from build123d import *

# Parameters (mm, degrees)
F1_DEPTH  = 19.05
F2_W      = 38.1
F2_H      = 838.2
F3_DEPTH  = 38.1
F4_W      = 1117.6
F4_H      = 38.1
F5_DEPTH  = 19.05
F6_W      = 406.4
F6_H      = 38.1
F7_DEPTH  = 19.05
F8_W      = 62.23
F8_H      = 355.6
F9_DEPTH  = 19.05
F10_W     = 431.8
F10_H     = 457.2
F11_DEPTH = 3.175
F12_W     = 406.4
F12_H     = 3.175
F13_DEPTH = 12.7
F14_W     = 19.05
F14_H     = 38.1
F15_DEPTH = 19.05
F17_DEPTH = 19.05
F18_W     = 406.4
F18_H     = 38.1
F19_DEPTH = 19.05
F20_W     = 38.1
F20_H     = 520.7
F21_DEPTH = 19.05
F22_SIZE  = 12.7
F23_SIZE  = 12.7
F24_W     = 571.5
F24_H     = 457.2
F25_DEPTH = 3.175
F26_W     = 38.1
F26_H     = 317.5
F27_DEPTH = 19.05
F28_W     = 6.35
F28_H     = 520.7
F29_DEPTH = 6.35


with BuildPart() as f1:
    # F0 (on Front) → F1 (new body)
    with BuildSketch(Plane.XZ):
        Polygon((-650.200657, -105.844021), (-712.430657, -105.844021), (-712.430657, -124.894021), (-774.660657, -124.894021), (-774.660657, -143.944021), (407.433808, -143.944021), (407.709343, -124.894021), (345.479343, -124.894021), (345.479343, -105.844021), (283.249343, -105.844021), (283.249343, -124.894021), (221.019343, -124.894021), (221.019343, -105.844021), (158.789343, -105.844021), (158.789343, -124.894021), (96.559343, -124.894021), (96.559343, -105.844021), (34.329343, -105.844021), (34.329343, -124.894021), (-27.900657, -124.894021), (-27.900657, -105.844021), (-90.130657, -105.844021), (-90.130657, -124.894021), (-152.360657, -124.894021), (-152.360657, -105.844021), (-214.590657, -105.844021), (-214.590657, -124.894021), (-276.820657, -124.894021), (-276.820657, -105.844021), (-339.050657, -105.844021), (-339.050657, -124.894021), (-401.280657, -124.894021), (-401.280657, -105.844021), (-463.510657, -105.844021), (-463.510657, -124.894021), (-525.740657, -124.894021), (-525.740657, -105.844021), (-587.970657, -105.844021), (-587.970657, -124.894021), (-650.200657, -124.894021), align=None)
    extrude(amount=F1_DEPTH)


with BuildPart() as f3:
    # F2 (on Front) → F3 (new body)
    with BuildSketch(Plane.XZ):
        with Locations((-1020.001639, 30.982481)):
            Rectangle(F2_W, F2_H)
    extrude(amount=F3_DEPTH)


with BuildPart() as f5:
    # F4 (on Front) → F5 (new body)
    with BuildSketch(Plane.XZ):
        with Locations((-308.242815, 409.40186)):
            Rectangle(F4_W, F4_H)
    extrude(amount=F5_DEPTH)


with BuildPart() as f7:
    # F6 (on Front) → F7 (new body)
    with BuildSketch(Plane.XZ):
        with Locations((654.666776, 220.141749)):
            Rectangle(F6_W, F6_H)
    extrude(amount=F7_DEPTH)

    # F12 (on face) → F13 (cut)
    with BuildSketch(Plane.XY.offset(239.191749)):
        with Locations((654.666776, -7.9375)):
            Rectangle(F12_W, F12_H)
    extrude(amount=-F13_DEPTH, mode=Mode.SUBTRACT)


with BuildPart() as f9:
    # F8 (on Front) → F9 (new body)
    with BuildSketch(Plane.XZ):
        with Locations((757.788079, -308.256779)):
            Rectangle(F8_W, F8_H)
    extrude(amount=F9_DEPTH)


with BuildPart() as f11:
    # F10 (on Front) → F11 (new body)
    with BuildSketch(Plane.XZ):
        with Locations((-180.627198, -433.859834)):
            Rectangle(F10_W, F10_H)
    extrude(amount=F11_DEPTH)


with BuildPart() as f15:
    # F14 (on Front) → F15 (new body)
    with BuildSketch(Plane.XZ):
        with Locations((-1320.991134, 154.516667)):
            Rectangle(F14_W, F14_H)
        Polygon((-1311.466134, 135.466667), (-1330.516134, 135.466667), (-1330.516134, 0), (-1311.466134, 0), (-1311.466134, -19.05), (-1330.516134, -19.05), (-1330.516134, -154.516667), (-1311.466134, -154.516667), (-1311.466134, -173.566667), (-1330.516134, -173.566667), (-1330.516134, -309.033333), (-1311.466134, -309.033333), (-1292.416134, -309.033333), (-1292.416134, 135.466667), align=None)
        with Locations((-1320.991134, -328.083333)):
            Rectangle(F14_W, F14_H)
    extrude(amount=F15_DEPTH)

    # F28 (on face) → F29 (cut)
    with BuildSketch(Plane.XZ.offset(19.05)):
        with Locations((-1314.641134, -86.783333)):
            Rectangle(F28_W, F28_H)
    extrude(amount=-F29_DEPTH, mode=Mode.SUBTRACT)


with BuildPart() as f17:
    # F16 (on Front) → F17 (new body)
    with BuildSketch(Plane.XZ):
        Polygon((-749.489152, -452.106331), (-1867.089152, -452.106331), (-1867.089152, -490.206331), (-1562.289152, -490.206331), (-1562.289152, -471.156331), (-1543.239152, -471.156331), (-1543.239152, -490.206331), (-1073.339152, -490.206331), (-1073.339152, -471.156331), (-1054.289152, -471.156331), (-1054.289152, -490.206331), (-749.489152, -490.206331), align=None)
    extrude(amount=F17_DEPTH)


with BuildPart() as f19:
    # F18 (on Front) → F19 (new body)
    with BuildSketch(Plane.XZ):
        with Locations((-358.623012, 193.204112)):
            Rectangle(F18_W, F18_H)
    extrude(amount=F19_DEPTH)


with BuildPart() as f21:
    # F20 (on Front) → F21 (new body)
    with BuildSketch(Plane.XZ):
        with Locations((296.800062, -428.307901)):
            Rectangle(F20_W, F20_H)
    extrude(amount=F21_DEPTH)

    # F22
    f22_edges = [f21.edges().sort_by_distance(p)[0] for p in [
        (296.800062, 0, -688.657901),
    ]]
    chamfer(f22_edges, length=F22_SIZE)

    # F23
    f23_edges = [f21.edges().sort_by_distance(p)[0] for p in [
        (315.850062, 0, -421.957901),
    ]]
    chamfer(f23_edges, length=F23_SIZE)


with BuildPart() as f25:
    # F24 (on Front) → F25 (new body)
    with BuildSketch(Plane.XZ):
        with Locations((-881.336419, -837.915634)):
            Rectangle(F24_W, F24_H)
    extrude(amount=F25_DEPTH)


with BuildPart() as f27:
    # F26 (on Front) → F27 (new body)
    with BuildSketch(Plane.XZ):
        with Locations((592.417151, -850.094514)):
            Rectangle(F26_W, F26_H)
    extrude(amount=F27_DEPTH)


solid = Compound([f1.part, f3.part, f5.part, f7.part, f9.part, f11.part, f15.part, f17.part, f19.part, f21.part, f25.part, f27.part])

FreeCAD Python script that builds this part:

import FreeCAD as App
import Part
import Sketcher

V = App.Vector
Q = App.Units.Quantity


def edges_at(feature, points):
    """Names of the edges that pass closest to the given points."""
    edges = feature.Shape.Edges
    near = lambda p: min(range(len(edges)), key=lambda i: edges[i].distToShape(Part.Vertex(*p))[0])
    return sorted({f"Edge{near(p) + 1}" for p in points})

doc = App.newDocument("Part")
params = doc.addObject("Spreadsheet::Sheet", "Params")
for row, (alias, value) in enumerate([
    ("sketch1_width", "2.45 in"),
    ("sketch1_height", "0.75 in"),
    ("pad1_length", "0.75 in"),
    ("sketch2_height", "33 in"),
    ("sketch2_width", "1.5 in"),
    ("pad2_length", "1.5 in"),
    ("sketch3_width", "44 in"),
    ("sketch3_height", "1.5 in"),
    ("pad3_length", "0.75 in"),
    ("sketch4_width", "16 in"),
    ("sketch4_height", "1.5 in"),
    ("pad4_length", "0.75 in"),
    ("sketch5_width", "16 in"),
    ("sketch5_height", "0.125 in"),
    ("pocket1_length", "0.5 in"),
    ("sketch6_height", "14 in"),
    ("sketch6_width", "2.45 in"),
    ("pad5_length", "0.75 in"),
    ("sketch7_width", "17 in"),
    ("sketch7_height", "18 in"),
    ("pad6_length", "0.125 in"),
    ("sketch8_height", "1.5 in"),
    ("sketch8_height2", "17.5 in"),
    ("sketch8_width", "0.75 in"),
    ("pad7_length", "0.75 in"),
    ("sketch9_height", "20.5 in"),
    ("sketch9_width", "0.25 in"),
    ("pocket2_length", "0.25 in"),
    ("sketch10_width", "44 in"),
    ("sketch10_width2", "12 in"),
    ("sketch10_width3", "18.5 in"),
    ("sketch10_height", "1.5 in"),
    ("pad8_length", "0.75 in"),
    ("sketch11_width", "16 in"),
    ("sketch11_height", "1.5 in"),
    ("pad9_length", "0.75 in"),
    ("sketch12_width", "1.5 in"),
    ("sketch12_height", "20.5 in"),
    ("pad10_length", "0.75 in"),
    ("chamfer_size", "0.5 in"),
    ("chamfer2_size", "0.5 in"),
    ("sketch13_height", "18 in"),
    ("sketch13_width", "22.5 in"),
    ("pad11_length", "0.125 in"),
    ("sketch14_width", "1.5 in"),
    ("sketch14_height", "12.5 in"),
    ("pad12_length", "0.75 in"),
], start=1):
    params.set(f"A{row}", alias)
    params.set(f"B{row}", "=" + value)
    params.setAlias(f"B{row}", alias)

body = doc.addObject("PartDesign::Body", "Body")

# Sketch on XZ plane
sketch1 = body.newObject("Sketcher::SketchObject", "Sketch")
sketch1.AttachmentSupport = (doc.getObject("XZ_Plane"), [""])
sketch1.MapMode = "FlatFace"
sketch1.addGeometry(Part.LineSegment(V(-650, -106, 0), V(-712, -106, 0)), False)
sketch1.addGeometry(Part.LineSegment(V(-712, -106, 0), V(-712, -125, 0)), False)
sketch1.addGeometry(Part.LineSegment(V(-712, -125, 0), V(-775, -125, 0)), False)
sketch1.addGeometry(Part.LineSegment(V(-775, -125, 0), V(-775, -144, 0)), False)
sketch1.addGeometry(Part.LineSegment(V(-775, -144, 0), V(407, -144, 0)), False)
sketch1.addGeometry(Part.LineSegment(V(407, -144, 0), V(408, -125, 0)), False)
sketch1.addGeometry(Part.LineSegment(V(408, -125, 0), V(345, -125, 0)), False)
sketch1.addGeometry(Part.LineSegment(V(345, -125, 0), V(345, -106, 0)), False)
sketch1.addGeometry(Part.LineSegment(V(345, -106, 0), V(283, -106, 0)), False)
sketch1.addGeometry(Part.LineSegment(V(283, -106, 0), V(283, -125, 0)), False)
sketch1.addGeometry(Part.LineSegment(V(283, -125, 0), V(221, -125, 0)), False)
sketch1.addGeometry(Part.LineSegment(V(221, -125, 0), V(221, -106, 0)), False)
sketch1.addGeometry(Part.LineSegment(V(221, -106, 0), V(159, -106, 0)), False)
sketch1.addGeometry(Part.LineSegment(V(159, -106, 0), V(159, -125, 0)), False)
sketch1.addGeometry(Part.LineSegment(V(159, -125, 0), V(97, -125, 0)), False)
sketch1.addGeometry(Part.LineSegment(V(97, -125, 0), V(97, -106, 0)), False)
sketch1.addGeometry(Part.LineSegment(V(97, -106, 0), V(34, -106, 0)), False)
sketch1.addGeometry(Part.LineSegment(V(34, -106, 0), V(34, -125, 0)), False)
sketch1.addGeometry(Part.LineSegment(V(34, -125, 0), V(-28, -125, 0)), False)
sketch1.addGeometry(Part.LineSegment(V(-28, -125, 0), V(-28, -106, 0)), False)
sketch1.addGeometry(Part.LineSegment(V(-28, -106, 0), V(-90, -106, 0)), False)
sketch1.addGeometry(Part.LineSegment(V(-90, -106, 0), V(-90, -125, 0)), False)
sketch1.addGeometry(Part.LineSegment(V(-90, -125, 0), V(-152, -125, 0)), False)
sketch1.addGeometry(Part.LineSegment(V(-152, -125, 0), V(-152, -106, 0)), False)
sketch1.addGeometry(Part.LineSegment(V(-152, -106, 0), V(-215, -106, 0)), False)
sketch1.addGeometry(Part.LineSegment(V(-215, -106, 0), V(-215, -125, 0)), False)
sketch1.addGeometry(Part.LineSegment(V(-215, -125, 0), V(-277, -125, 0)), False)
sketch1.addGeometry(Part.LineSegment(V(-277, -125, 0), V(-277, -106, 0)), False)
sketch1.addGeometry(Part.LineSegment(V(-277, -106, 0), V(-339, -106, 0)), False)
sketch1.addGeometry(Part.LineSegment(V(-339, -106, 0), V(-339, -125, 0)), False)
sketch1.addGeometry(Part.LineSegment(V(-339, -125, 0), V(-401, -125, 0)), False)
sketch1.addGeometry(Part.LineSegment(V(-401, -125, 0), V(-401, -106, 0)), False)
sketch1.addGeometry(Part.LineSegment(V(-401, -106, 0), V(-464, -106, 0)), False)
sketch1.addGeometry(Part.LineSegment(V(-464, -106, 0), V(-464, -125, 0)), False)
sketch1.addGeometry(Part.LineSegment(V(-464, -125, 0), V(-526, -125, 0)), False)
sketch1.addGeometry(Part.LineSegment(V(-526, -125, 0), V(-526, -106, 0)), False)
sketch1.addGeometry(Part.LineSegment(V(-526, -106, 0), V(-588, -106, 0)), False)
sketch1.addGeometry(Part.LineSegment(V(-588, -106, 0), V(-588, -125, 0)), False)
sketch1.addGeometry(Part.LineSegment(V(-588, -125, 0), V(-650, -125, 0)), False)
sketch1.addGeometry(Part.LineSegment(V(-650, -125, 0), V(-650, -106, 0)), False)
sketch1.addConstraint(Sketcher.Constraint("Coincident", 0, 2, 1, 1))
sketch1.addConstraint(Sketcher.Constraint("Coincident", 1, 2, 2, 1))
sketch1.addConstraint(Sketcher.Constraint("Coincident", 2, 2, 3, 1))
sketch1.addConstraint(Sketcher.Constraint("Coincident", 3, 2, 4, 1))
sketch1.addConstraint(Sketcher.Constraint("Coincident", 4, 2, 5, 1))
sketch1.addConstraint(Sketcher.Constraint("Coincident", 5, 2, 6, 1))
sketch1.addConstraint(Sketcher.Constraint("Coincident", 6, 2, 7, 1))
sketch1.addConstraint(Sketcher.Constraint("Coincident", 7, 2, 8, 1))
sketch1.addConstraint(Sketcher.Constraint("Coincident", 8, 2, 9, 1))
sketch1.addConstraint(Sketcher.Constraint("Coincident", 9, 2, 10, 1))
sketch1.addConstraint(Sketcher.Constraint("Coincident", 10, 2, 11, 1))
sketch1.addConstraint(Sketcher.Constraint("Coincident", 11, 2, 12, 1))
sketch1.addConstraint(Sketcher.Constraint("Coincident", 12, 2, 13, 1))
sketch1.addConstraint(Sketcher.Constraint("Coincident", 13, 2, 14, 1))
sketch1.addConstraint(Sketcher.Constraint("Coincident", 14, 2, 15, 1))
sketch1.addConstraint(Sketcher.Constraint("Coincident", 15, 2, 16, 1))
sketch1.addConstraint(Sketcher.Constraint("Coincident", 16, 2, 17, 1))
sketch1.addConstraint(Sketcher.Constraint("Coincident", 17, 2, 18, 1))
sketch1.addConstraint(Sketcher.Constraint("Coincident", 18, 2, 19, 1))
sketch1.addConstraint(Sketcher.Constraint("Coincident", 19, 2, 20, 1))
sketch1.addConstraint(Sketcher.Constraint("Coincident", 20, 2, 21, 1))
sketch1.addConstraint(Sketcher.Constraint("Coincident", 21, 2, 22, 1))
sketch1.addConstraint(Sketcher.Constraint("Coincident", 22, 2, 23, 1))
sketch1.addConstraint(Sketcher.Constraint("Coincident", 23, 2, 24, 1))
sketch1.addConstraint(Sketcher.Constraint("Coincident", 24, 2, 25, 1))
sketch1.addConstraint(Sketcher.Constraint("Coincident", 25, 2, 26, 1))
sketch1.addConstraint(Sketcher.Constraint("Coincident", 26, 2, 27, 1))
sketch1.addConstraint(Sketcher.Constraint("Coincident", 27, 2, 28, 1))
sketch1.addConstraint(Sketcher.Constraint("Coincident", 28, 2, 29, 1))
sketch1.addConstraint(Sketcher.Constraint("Coincident", 29, 2, 30, 1))
sketch1.addConstraint(Sketcher.Constraint("Coincident", 30, 2, 31, 1))
sketch1.addConstraint(Sketcher.Constraint("Coincident", 31, 2, 32, 1))
sketch1.addConstraint(Sketcher.Constraint("Coincident", 32, 2, 33, 1))
sketch1.addConstraint(Sketcher.Constraint("Coincident", 33, 2, 34, 1))
sketch1.addConstraint(Sketcher.Constraint("Coincident", 34, 2, 35, 1))
sketch1.addConstraint(Sketcher.Constraint("Coincident", 35, 2, 36, 1))
sketch1.addConstraint(Sketcher.Constraint("Coincident", 36, 2, 37, 1))
sketch1.addConstraint(Sketcher.Constraint("Coincident", 37, 2, 38, 1))
sketch1.addConstraint(Sketcher.Constraint("Coincident", 38, 2, 39, 1))
sketch1.addConstraint(Sketcher.Constraint("Coincident", 39, 2, 0, 1))
sketch1.addConstraint(Sketcher.Constraint("Horizontal", 0))
sketch1.addConstraint(Sketcher.Constraint("Vertical", 1))
sketch1.addConstraint(Sketcher.Constraint("Horizontal", 2))
sketch1.addConstraint(Sketcher.Constraint("Vertical", 3))
sketch1.addConstraint(Sketcher.Constraint("Horizontal", 4))
sketch1.addConstraint(Sketcher.Constraint("Horizontal", 6))
sketch1.addConstraint(Sketcher.Constraint("Vertical", 7))
sketch1.addConstraint(Sketcher.Constraint("Horizontal", 8))
sketch1.addConstraint(Sketcher.Constraint("Vertical", 9))
sketch1.addConstraint(Sketcher.Constraint("Horizontal", 10))
sketch1.addConstraint(Sketcher.Constraint("Vertical", 11))
sketch1.addConstraint(Sketcher.Constraint("Horizontal", 12))
sketch1.addConstraint(Sketcher.Constraint("Vertical", 13))
sketch1.addConstraint(Sketcher.Constraint("Horizontal", 14))
sketch1.addConstraint(Sketcher.Constraint("Vertical", 15))
sketch1.addConstraint(Sketcher.Constraint("Horizontal", 16))
sketch1.addConstraint(Sketcher.Constraint("Vertical", 17))
sketch1.addConstraint(Sketcher.Constraint("Horizontal", 18))
sketch1.addConstraint(Sketcher.Constraint("Vertical", 19))
sketch1.addConstraint(Sketcher.Constraint("Horizontal", 20))
sketch1.addConstraint(Sketcher.Constraint("Vertical", 21))
sketch1.addConstraint(Sketcher.Constraint("Horizontal", 22))
sketch1.addConstraint(Sketcher.Constraint("Vertical", 23))
sketch1.addConstraint(Sketcher.Constraint("Horizontal", 24))
sketch1.addConstraint(Sketcher.Constraint("Vertical", 25))
sketch1.addConstraint(Sketcher.Constraint("Horizontal", 26))
sketch1.addConstraint(Sketcher.Constraint("Vertical", 27))
sketch1.addConstraint(Sketcher.Constraint("Horizontal", 28))
sketch1.addConstraint(Sketcher.Constraint("Vertical", 29))
sketch1.addConstraint(Sketcher.Constraint("Horizontal", 30))
sketch1.addConstraint(Sketcher.Constraint("Vertical", 31))
sketch1.addConstraint(Sketcher.Constraint("Horizontal", 32))
sketch1.addConstraint(Sketcher.Constraint("Vertical", 33))
sketch1.addConstraint(Sketcher.Constraint("Horizontal", 34))
sketch1.addConstraint(Sketcher.Constraint("Vertical", 35))
sketch1.addConstraint(Sketcher.Constraint("Horizontal", 36))
sketch1.addConstraint(Sketcher.Constraint("Vertical", 37))
sketch1.addConstraint(Sketcher.Constraint("Horizontal", 38))
sketch1.addConstraint(Sketcher.Constraint("Vertical", 39))
sketch1.addConstraint(Sketcher.Constraint("Horizontal", 2, 2, 5, 2))
sketch1.addConstraint(Sketcher.Constraint("Horizontal", 0, 2, 7, 2))
sketch1.addConstraint(Sketcher.Constraint("Horizontal", 6, 2, 9, 2))
sketch1.addConstraint(Sketcher.Constraint("Horizontal", 8, 2, 11, 2))
sketch1.addConstraint(Sketcher.Constraint("Horizontal", 10, 2, 13, 2))
sketch1.addConstraint(Sketcher.Constraint("Horizontal", 12, 2, 15, 2))
sketch1.addConstraint(Sketcher.Constraint("Horizontal", 14, 2, 17, 2))
sketch1.addConstraint(Sketcher.Constraint("Horizontal", 16, 2, 19, 2))
sketch1.addConstraint(Sketcher.Constraint("Horizontal", 18, 2, 21, 2))
sketch1.addConstraint(Sketcher.Constraint("Horizontal", 20, 2, 23, 2))
sketch1.addConstraint(Sketcher.Constraint("Horizontal", 22, 2, 25, 2))
sketch1.addConstraint(Sketcher.Constraint("Horizontal", 24, 2, 27, 2))
sketch1.addConstraint(Sketcher.Constraint("Horizontal", 26, 2, 29, 2))
sketch1.addConstraint(Sketcher.Constraint("Horizontal", 28, 2, 31, 2))
sketch1.addConstraint(Sketcher.Constraint("Horizontal", 30, 2, 33, 2))
sketch1.addConstraint(Sketcher.Constraint("Horizontal", 32, 2, 35, 2))
sketch1.addConstraint(Sketcher.Constraint("Horizontal", 34, 2, 37, 2))
sketch1.addConstraint(Sketcher.Constraint("Equal", 0, 2))
sketch1.addConstraint(Sketcher.Constraint("Equal", 2, 6))
sketch1.addConstraint(Sketcher.Constraint("Equal", 6, 8))
sketch1.addConstraint(Sketcher.Constraint("Equal", 8, 10))
sketch1.addConstraint(Sketcher.Constraint("Equal", 10, 12))
sketch1.addConstraint(Sketcher.Constraint("Equal", 12, 14))
sketch1.addConstraint(Sketcher.Constraint("Equal", 14, 16))
sketch1.addConstraint(Sketcher.Constraint("Equal", 16, 18))
sketch1.addConstraint(Sketcher.Constraint("Equal", 18, 20))
sketch1.addConstraint(Sketcher.Constraint("Equal", 20, 22))
sketch1.addConstraint(Sketcher.Constraint("Equal", 22, 24))
sketch1.addConstraint(Sketcher.Constraint("Equal", 24, 26))
sketch1.addConstraint(Sketcher.Constraint("Equal", 26, 28))
sketch1.addConstraint(Sketcher.Constraint("Equal", 28, 30))
sketch1.addConstraint(Sketcher.Constraint("Equal", 30, 32))
sketch1.addConstraint(Sketcher.Constraint("Equal", 32, 34))
sketch1.addConstraint(Sketcher.Constraint("Equal", 34, 36))
sketch1.addConstraint(Sketcher.Constraint("Equal", 36, 38))
sketch1.addConstraint(Sketcher.Constraint("Equal", 1, 3))
sketch1.addConstraint(Sketcher.Constraint("DistanceX", 0, 2, 0, 1, Q("2.45 in")))
sketch1.addConstraint(Sketcher.Constraint("DistanceY", 1, 2, 1, 1, Q("0.75 in")))
sketch1.addConstraint(Sketcher.Constraint("DistanceX", 4, 1, 4, 2, Q("1182.094465 mm")))
sketch1.addConstraint(Sketcher.Constraint("DistanceY", 0, 2, -1, 1, Q("105.844021 mm")))
sketch1.addConstraint(Sketcher.Constraint("DistanceX", -1, 1, 4, 2, Q("407.433808 mm")))
sketch1.setExpression("Constraints[115]", "Params.sketch1_width")
sketch1.setExpression("Constraints[116]", "Params.sketch1_height")
pad1 = body.newObject("PartDesign::Pad", "Pad")
pad1.Profile = sketch1
pad1.setExpression("Length", "Params.pad1_length")
body2 = doc.addObject("PartDesign::Body", "Body001")

# Sketch on XZ plane
sketch2 = body2.newObject("Sketcher::SketchObject", "Sketch001")
sketch2.AttachmentSupport = (doc.getObject("XZ_Plane001"), [""])
sketch2.MapMode = "FlatFace"
sketch2.addGeometry(Part.LineSegment(V(-1039, 450, 0), V(-1039, -388, 0)), False)
sketch2.addGeometry(Part.LineSegment(V(-1039, -388, 0), V(-1001, -388, 0)), False)
sketch2.addGeometry(Part.LineSegment(V(-1001, -388, 0), V(-1001, 450, 0)), False)
sketch2.addGeometry(Part.LineSegment(V(-1001, 450, 0), V(-1039, 450, 0)), False)
sketch2.addConstraint(Sketcher.Constraint("Coincident", 0, 2, 1, 1))
sketch2.addConstraint(Sketcher.Constraint("Coincident", 1, 2, 2, 1))
sketch2.addConstraint(Sketcher.Constraint("Coincident", 2, 2, 3, 1))
sketch2.addConstraint(Sketcher.Constraint("Coincident", 3, 2, 0, 1))
sketch2.addConstraint(Sketcher.Constraint("Vertical", 0))
sketch2.addConstraint(Sketcher.Constraint("Horizontal", 1))
sketch2.addConstraint(Sketcher.Constraint("Vertical", 2))
sketch2.addConstraint(Sketcher.Constraint("Horizontal", 3))
sketch2.addConstraint(Sketcher.Constraint("DistanceY", 0, 2, 0, 1, Q("33 in")))
sketch2.addConstraint(Sketcher.Constraint("DistanceX", 1, 1, 1, 2, Q("1.5 in")))
sketch2.addConstraint(Sketcher.Constraint("DistanceX", 0, 2, -1, 1, Q("1039.051639 mm")))
sketch2.addConstraint(Sketcher.Constraint("DistanceY", 0, 2, -1, 1, Q("388.117519 mm")))
sketch2.setExpression("Constraints[8]", "Params.sketch2_height")
sketch2.setExpression("Constraints[9]", "Params.sketch2_width")
pad2 = body2.newObject("PartDesign::Pad", "Pad001")
pad2.Profile = sketch2
pad2.setExpression("Length", "Params.pad2_length")
body3 = doc.addObject("PartDesign::Body", "Body002")

# Sketch on XZ plane
sketch3 = body3.newObject("Sketcher::SketchObject", "Sketch002")
sketch3.AttachmentSupport = (doc.getObject("XZ_Plane002"), [""])
sketch3.MapMode = "FlatFace"
sketch3.addGeometry(Part.LineSegment(V(-867, 428, 0), V(-867, 390, 0)), False)
sketch3.addGeometry(Part.LineSegment(V(-867, 390, 0), V(251, 390, 0)), False)
sketch3.addGeometry(Part.LineSegment(V(251, 390, 0), V(251, 428, 0)), False)
sketch3.addGeometry(Part.LineSegment(V(251, 428, 0), V(-867, 428, 0)), False)
sketch3.addConstraint(Sketcher.Constraint("Coincident", 0, 2, 1, 1))
sketch3.addConstraint(Sketcher.Constraint("Coincident", 1, 2, 2, 1))
sketch3.addConstraint(Sketcher.Constraint("Coincident", 2, 2, 3, 1))
sketch3.addConstraint(Sketcher.Constraint("Coincident", 3, 2, 0, 1))
sketch3.addConstraint(Sketcher.Constraint("Vertical", 0))
sketch3.addConstraint(Sketcher.Constraint("Horizontal", 1))
sketch3.addConstraint(Sketcher.Constraint("Vertical", 2))
sketch3.addConstraint(Sketcher.Constraint("Horizontal", 3))
sketch3.addConstraint(Sketcher.Constraint("DistanceX", 1, 1, 1, 2, Q("44 in")))
sketch3.addConstraint(Sketcher.Constraint("DistanceY", 0, 2, 0, 1, Q("1.5 in")))
sketch3.addConstraint(Sketcher.Constraint("DistanceY", -1, 1, 0, 2, Q("390.35186 mm")))
sketch3.addConstraint(Sketcher.Constraint("DistanceX", 0, 2, -1, 1, Q("867.042815 mm")))
sketch3.setExpression("Constraints[8]", "Params.sketch3_width")
sketch3.setExpression("Constraints[9]", "Params.sketch3_height")
pad3 = body3.newObject("PartDesign::Pad", "Pad002")
pad3.Profile = sketch3
pad3.setExpression("Length", "Params.pad3_length")
body4 = doc.addObject("PartDesign::Body", "Body003")

# Sketch on XZ plane
sketch4 = body4.newObject("Sketcher::SketchObject", "Sketch003")
sketch4.AttachmentSupport = (doc.getObject("XZ_Plane003"), [""])
sketch4.MapMode = "FlatFace"
sketch4.addGeometry(Part.LineSegment(V(451, 239, 0), V(451, 201, 0)), False)
sketch4.addGeometry(Part.LineSegment(V(451, 201, 0), V(858, 201, 0)), False)
sketch4.addGeometry(Part.LineSegment(V(858, 201, 0), V(858, 239, 0)), False)
sketch4.addGeometry(Part.LineSegment(V(858, 239, 0), V(451, 239, 0)), False)
sketch4.addConstraint(Sketcher.Constraint("Coincident", 0, 2, 1, 1))
sketch4.addConstraint(Sketcher.Constraint("Coincident", 1, 2, 2, 1))
sketch4.addConstraint(Sketcher.Constraint("Coincident", 2, 2, 3, 1))
sketch4.addConstraint(Sketcher.Constraint("Coincident", 3, 2, 0, 1))
sketch4.addConstraint(Sketcher.Constraint("Vertical", 0))
sketch4.addConstraint(Sketcher.Constraint("Horizontal", 1))
sketch4.addConstraint(Sketcher.Constraint("Vertical", 2))
sketch4.addConstraint(Sketcher.Constraint("Horizontal", 3))
sketch4.addConstraint(Sketcher.Constraint("DistanceX", 1, 1, 1, 2, Q("16 in")))
sketch4.addConstraint(Sketcher.Constraint("DistanceY", 0, 2, 0, 1, Q("1.5 in")))
sketch4.addConstraint(Sketcher.Constraint("DistanceY", -1, 1, 0, 2, Q("201.091749 mm")))
sketch4.addConstraint(Sketcher.Constraint("DistanceX", -1, 1, 0, 2, Q("451.466776 mm")))
sketch4.setExpression("Constraints[8]", "Params.sketch4_width")
sketch4.setExpression("Constraints[9]", "Params.sketch4_height")
pad4 = body4.newObject("PartDesign::Pad", "Pad003")
pad4.Profile = sketch4
pad4.setExpression("Length", "Params.pad4_length")

# Sketch on XY plane
sketch5 = body4.newObject("Sketcher::SketchObject", "Sketch004")
sketch5.AttachmentSupport = (doc.getObject("XY_Plane003"), [""])
sketch5.MapMode = "FlatFace"
sketch5.AttachmentOffset = App.Placement(V(0, 0, 239.191749), App.Rotation())
sketch5.addGeometry(Part.LineSegment(V(451.5, -6.3, 0), V(451.5, -9.5, 0)), False)
sketch5.addGeometry(Part.LineSegment(V(451.5, -9.5, 0), V(857.9, -9.5, 0)), False)
sketch5.addGeometry(Part.LineSegment(V(857.9, -9.5, 0), V(857.9, -6.3, 0)), False)
sketch5.addGeometry(Part.LineSegment(V(857.9, -6.3, 0), V(451.5, -6.3, 0)), False)
sketch5.addConstraint(Sketcher.Constraint("Coincident", 0, 2, 1, 1))
sketch5.addConstraint(Sketcher.Constraint("Coincident", 1, 2, 2, 1))
sketch5.addConstraint(Sketcher.Constraint("Coincident", 2, 2, 3, 1))
sketch5.addConstraint(Sketcher.Constraint("Coincident", 3, 2, 0, 1))
sketch5.addConstraint(Sketcher.Constraint("Vertical", 0))
sketch5.addConstraint(Sketcher.Constraint("Horizontal", 1))
sketch5.addConstraint(Sketcher.Constraint("Vertical", 2))
sketch5.addConstraint(Sketcher.Constraint("Horizontal", 3))
sketch5.addConstraint(Sketcher.Constraint("DistanceX", 1, 1, 1, 2, Q("16 in")))
sketch5.addConstraint(Sketcher.Constraint("DistanceY", 0, 2, 0, 1, Q("0.125 in")))
sketch5.addConstraint(Sketcher.Constraint("DistanceY", 2, 2, -1, 1, Q("0.25 in")))
sketch5.addConstraint(Sketcher.Constraint("DistanceX", -1, 1, 0, 2, Q("451.466776 mm")))
sketch5.setExpression("Constraints[8]", "Params.sketch5_width")
sketch5.setExpression("Constraints[9]", "Params.sketch5_height")
pocket1 = body4.newObject("PartDesign::Pocket", "Pocket")
pocket1.Profile = sketch5
pocket1.setExpression("Length", "Params.pocket1_length")
body5 = doc.addObject("PartDesign::Body", "Body004")

# Sketch on XZ plane
sketch6 = body5.newObject("Sketcher::SketchObject", "Sketch005")
sketch6.AttachmentSupport = (doc.getObject("XZ_Plane004"), [""])
sketch6.MapMode = "FlatFace"
sketch6.addGeometry(Part.LineSegment(V(727, -130, 0), V(727, -486, 0)), False)
sketch6.addGeometry(Part.LineSegment(V(727, -486, 0), V(789, -486, 0)), False)
sketch6.addGeometry(Part.LineSegment(V(789, -486, 0), V(789, -130, 0)), False)
sketch6.addGeometry(Part.LineSegment(V(789, -130, 0), V(727, -130, 0)), False)
sketch6.addConstraint(Sketcher.Constraint("Coincident", 0, 2, 1, 1))
sketch6.addConstraint(Sketcher.Constraint("Coincident", 1, 2, 2, 1))
sketch6.addConstraint(Sketcher.Constraint("Coincident", 2, 2, 3, 1))
sketch6.addConstraint(Sketcher.Constraint("Coincident", 3, 2, 0, 1))
sketch6.addConstraint(Sketcher.Constraint("Vertical", 0))
sketch6.addConstraint(Sketcher.Constraint("Horizontal", 1))
sketch6.addConstraint(Sketcher.Constraint("Vertical", 2))
sketch6.addConstraint(Sketcher.Constraint("Horizontal", 3))
sketch6.addConstraint(Sketcher.Constraint("DistanceY", 0, 2, 0, 1, Q("14 in")))
sketch6.addConstraint(Sketcher.Constraint("DistanceX", 1, 1, 1, 2, Q("2.45 in")))
sketch6.addConstraint(Sketcher.Constraint("DistanceX", -1, 1, 0, 2, Q("726.673079 mm")))
sketch6.addConstraint(Sketcher.Constraint("DistanceY", 0, 2, -1, 1, Q("486.056779 mm")))
sketch6.setExpression("Constraints[8]", "Params.sketch6_height")
sketch6.setExpression("Constraints[9]", "Params.sketch6_width")
pad5 = body5.newObject("PartDesign::Pad", "Pad004")
pad5.Profile = sketch6
pad5.setExpression("Length", "Params.pad5_length")
body6 = doc.addObject("PartDesign::Body", "Body005")

# Sketch on XZ plane
sketch7 = body6.newObject("Sketcher::SketchObject", "Sketch006")
sketch7.AttachmentSupport = (doc.getObject("XZ_Plane005"), [""])
sketch7.MapMode = "FlatFace"
sketch7.addGeometry(Part.LineSegment(V(-397, -205, 0), V(-397, -662, 0)), False)
sketch7.addGeometry(Part.LineSegment(V(-397, -662, 0), V(35, -662, 0)), False)
sketch7.addGeometry(Part.LineSegment(V(35, -662, 0), V(35, -205, 0)), False)
sketch7.addGeometry(Part.LineSegment(V(35, -205, 0), V(-397, -205, 0)), False)
sketch7.addConstraint(Sketcher.Constraint("Coincident", 0, 2, 1, 1))
sketch7.addConstraint(Sketcher.Constraint("Coincident", 1, 2, 2, 1))
sketch7.addConstraint(Sketcher.Constraint("Coincident", 2, 2, 3, 1))
sketch7.addConstraint(Sketcher.Constraint("Coincident", 3, 2, 0, 1))
sketch7.addConstraint(Sketcher.Constraint("Vertical", 0))
sketch7.addConstraint(Sketcher.Constraint("Horizontal", 1))
sketch7.addConstraint(Sketcher.Constraint("Vertical", 2))
sketch7.addConstraint(Sketcher.Constraint("Horizontal", 3))
sketch7.addConstraint(Sketcher.Constraint("DistanceX", 1, 1, 1, 2, Q("17 in")))
sketch7.addConstraint(Sketcher.Constraint("DistanceY", 0, 2, 0, 1, Q("18 in")))
sketch7.addConstraint(Sketcher.Constraint("DistanceX", 0, 2, -1, 1, Q("396.527198 mm")))
sketch7.addConstraint(Sketcher.Constraint("DistanceY", 0, 2, -1, 1, Q("662.459834 mm")))
sketch7.setExpression("Constraints[8]", "Params.sketch7_width")
sketch7.setExpression("Constraints[9]", "Params.sketch7_height")
pad6 = body6.newObject("PartDesign::Pad", "Pad005")
pad6.Profile = sketch7
pad6.setExpression("Length", "Params.pad6_length")
body7 = doc.addObject("PartDesign::Body", "Body006")

# Sketch on XZ plane
sketch8 = body7.newObject("Sketcher::SketchObject", "Sketch007")
sketch8.AttachmentSupport = (doc.getObject("XZ_Plane006"), [""])
sketch8.MapMode = "FlatFace"
sketch8.addGeometry(Part.LineSegment(V(-1331, 174, 0), V(-1331, 0, 0)), False)
sketch8.addGeometry(Part.LineSegment(V(-1331, 0, 0), V(-1311, 0, 0)), False)
sketch8.addGeometry(Part.LineSegment(V(-1311, 0, 0), V(-1311, -19, 0)), False)
sketch8.addGeometry(Part.LineSegment(V(-1311, -19, 0), V(-1331, -19, 0)), False)
sketch8.addGeometry(Part.LineSegment(V(-1331, -19, 0), V(-1331, -155, 0)), False)
sketch8.addGeometry(Part.LineSegment(V(-1331, -155, 0), V(-1311, -155, 0)), False)
sketch8.addGeometry(Part.LineSegment(V(-1311, -155, 0), V(-1311, -174, 0)), False)
sketch8.addGeometry(Part.LineSegment(V(-1311, -174, 0), V(-1331, -174, 0)), False)
sketch8.addGeometry(Part.LineSegment(V(-1331, -174, 0), V(-1331, -347, 0)), False)
sketch8.addGeometry(Part.LineSegment(V(-1331, -347, 0), V(-1311, -347, 0)), False)
sketch8.addGeometry(Part.LineSegment(V(-1311, -347, 0), V(-1311, -309, 0)), False)
sketch8.addGeometry(Part.LineSegment(V(-1311, -309, 0), V(-1292, -309, 0)), False)
sketch8.addGeometry(Part.LineSegment(V(-1292, -309, 0), V(-1292, 135, 0)), False)
sketch8.addGeometry(Part.LineSegment(V(-1292, 135, 0), V(-1311, 135, 0)), False)
sketch8.addGeometry(Part.LineSegment(V(-1311, 135, 0), V(-1311, 174, 0)), False)
sketch8.addGeometry(Part.LineSegment(V(-1311, 174, 0), V(-1331, 174, 0)), False)
sketch8.addConstraint(Sketcher.Constraint("Coincident", 0, 2, 1, 1))
sketch8.addConstraint(Sketcher.Constraint("Coincident", 1, 2, 2, 1))
sketch8.addConstraint(Sketcher.Constraint("Coincident", 2, 2, 3, 1))
sketch8.addConstraint(Sketcher.Constraint("Coincident", 3, 2, 4, 1))
sketch8.addConstraint(Sketcher.Constraint("Coincident", 4, 2, 5, 1))
sketch8.addConstraint(Sketcher.Constraint("Coincident", 5, 2, 6, 1))
sketch8.addConstraint(Sketcher.Constraint("Coincident", 6, 2, 7, 1))
sketch8.addConstraint(Sketcher.Constraint("Coincident", 7, 2, 8, 1))
sketch8.addConstraint(Sketcher.Constraint("Coincident", 8, 2, 9, 1))
sketch8.addConstraint(Sketcher.Constraint("Coincident", 9, 2, 10, 1))
sketch8.addConstraint(Sketcher.Constraint("Coincident", 10, 2, 11, 1))
sketch8.addConstraint(Sketcher.Constraint("Coincident", 11, 2, 12, 1))
sketch8.addConstraint(Sketcher.Constraint("Coincident", 12, 2, 13, 1))
sketch8.addConstraint(Sketcher.Constraint("Coincident", 13, 2, 14, 1))
sketch8.addConstraint(Sketcher.Constraint("Coincident", 14, 2, 15, 1))
sketch8.addConstraint(Sketcher.Constraint("Coincident", 15, 2, 0, 1))
sketch8.addConstraint(Sketcher.Constraint("Vertical", 0))
sketch8.addConstraint(Sketcher.Constraint("Horizontal", 1))
sketch8.addConstraint(Sketcher.Constraint("Vertical", 2))
sketch8.addConstraint(Sketcher.Constraint("Horizontal", 3))
sketch8.addConstraint(Sketcher.Constraint("Vertical", 4))
sketch8.addConstraint(Sketcher.Constraint("Horizontal", 5))
sketch8.addConstraint(Sketcher.Constraint("Vertical", 6))
sketch8.addConstraint(Sketcher.Constraint("Horizontal", 7))
sketch8.addConstraint(Sketcher.Constraint("Vertical", 8))
sketch8.addConstraint(Sketcher.Constraint("Horizontal", 9))
sketch8.addConstraint(Sketcher.Constraint("Vertical", 10))
sketch8.addConstraint(Sketcher.Constraint("Horizontal", 11))
sketch8.addConstraint(Sketcher.Constraint("Vertical", 12))
sketch8.addConstraint(Sketcher.Constraint("Horizontal", 13))
sketch8.addConstraint(Sketcher.Constraint("Vertical", 14))
sketch8.addConstraint(Sketcher.Constraint("Horizontal", 15))
sketch8.addConstraint(Sketcher.Constraint("Symmetric", 6, 2, 14, 2, -1))
sketch8.addConstraint(Sketcher.Constraint("PointOnObject", 0, 2, -1))
sketch8.addConstraint(Sketcher.Constraint("Vertical", 0, 2, 3, 2))
sketch8.addConstraint(Sketcher.Constraint("Vertical", 2, 2, 5, 2))
sketch8.addConstraint(Sketcher.Constraint("Vertical", 4, 2, 7, 2))
sketch8.addConstraint(Sketcher.Constraint("Vertical", 6, 2, 9, 2))
sketch8.addConstraint(Sketcher.Constraint("Equal", 9, 11))
sketch8.addConstraint(Sketcher.Constraint("Equal", 15, 2))
sketch8.addConstraint(Sketcher.Constraint("Equal", 2, 6))
sketch8.addConstraint(Sketcher.Constraint("Equal", 0, 8))
sketch8.addConstraint(Sketcher.Constraint("Equal", 10, 14))
sketch8.addConstraint(Sketcher.Constraint("DistanceY", 10, 1, 10, 2, Q("1.5 in")))
sketch8.addConstraint(Sketcher.Constraint("DistanceY", 12, 1, 12, 2, Q("17.5 in")))
sketch8.addConstraint(Sketcher.Constraint("DistanceX", 1, 1, 1, 2, Q("0.75 in")))
sketch8.addConstraint(Sketcher.Constraint("DistanceX", 0, 2, -1, 1, Q("1330.516134 mm")))
sketch8.setExpression("Constraints[43]", "Params.sketch8_height")
sketch8.setExpression("Constraints[44]", "Params.sketch8_height2")
sketch8.setExpression("Constraints[45]", "Params.sketch8_width")
pad7 = body7.newObject("PartDesign::Pad", "Pad006")
pad7.Profile = sketch8
pad7.setExpression("Length", "Params.pad7_length")

# Sketch on XZ plane
sketch9 = body7.newObject("Sketcher::SketchObject", "Sketch008")
sketch9.AttachmentSupport = (doc.getObject("XZ_Plane006"), [""])
sketch9.MapMode = "FlatFace"
sketch9.AttachmentOffset = App.Placement(V(0, 0, 0.75 * 25.4), App.Rotation())
sketch9.addGeometry(Part.LineSegment(V(-1318, 174, 0), V(-1318, -347, 0)), False)
sketch9.addGeometry(Part.LineSegment(V(-1318, -347, 0), V(-1311, -347, 0)), False)
sketch9.addGeometry(Part.LineSegment(V(-1311, -347, 0), V(-1311, 174, 0)), False)
sketch9.addGeometry(Part.LineSegment(V(-1311, 174, 0), V(-1318, 174, 0)), False)
sketch9.addConstraint(Sketcher.Constraint("Coincident", 0, 2, 1, 1))
sketch9.addConstraint(Sketcher.Constraint("Coincident", 1, 2, 2, 1))
sketch9.addConstraint(Sketcher.Constraint("Coincident", 2, 2, 3, 1))
sketch9.addConstraint(Sketcher.Constraint("Coincident", 3, 2, 0, 1))
sketch9.addConstraint(Sketcher.Constraint("Vertical", 0))
sketch9.addConstraint(Sketcher.Constraint("Horizontal", 1))
sketch9.addConstraint(Sketcher.Constraint("Vertical", 2))
sketch9.addConstraint(Sketcher.Constraint("Horizontal", 3))
sketch9.addConstraint(Sketcher.Constraint("DistanceY", 0, 2, 0, 1, Q("20.5 in")))
sketch9.addConstraint(Sketcher.Constraint("DistanceX", 1, 1, 1, 2, Q("0.25 in")))
sketch9.addConstraint(Sketcher.Constraint("DistanceX", 0, 2, -1, 1, Q("1317.816134 mm")))
sketch9.addConstraint(Sketcher.Constraint("DistanceY", 0, 2, -1, 1, Q("347.133333 mm")))
sketch9.setExpression("Constraints[8]", "Params.sketch9_height")
sketch9.setExpression("Constraints[9]", "Params.sketch9_width")
pocket2 = body7.newObject("PartDesign::Pocket", "Pocket001")
pocket2.Profile = sketch9
pocket2.setExpression("Length", "Params.pocket2_length")
body8 = doc.addObject("PartDesign::Body", "Body007")

# Sketch on XZ plane
sketch10 = body8.newObject("Sketcher::SketchObject", "Sketch009")
sketch10.AttachmentSupport = (doc.getObject("XZ_Plane007"), [""])
sketch10.MapMode = "FlatFace"
sketch10.addGeometry(Part.LineSegment(V(-749, -452, 0), V(-1867, -452, 0)), False)
sketch10.addGeometry(Part.LineSegment(V(-1867, -452, 0), V(-1867, -490, 0)), False)
sketch10.addGeometry(Part.LineSegment(V(-1867, -490, 0), V(-1562, -490, 0)), False)
sketch10.addGeometry(Part.LineSegment(V(-1562, -490, 0), V(-1562, -471, 0)), False)
sketch10.addGeometry(Part.LineSegment(V(-1562, -471, 0), V(-1543, -471, 0)), False)
sketch10.addGeometry(Part.LineSegment(V(-1543, -471, 0), V(-1543, -490, 0)), False)
sketch10.addGeometry(Part.LineSegment(V(-1543, -490, 0), V(-1073, -490, 0)), False)
sketch10.addGeometry(Part.LineSegment(V(-1073, -490, 0), V(-1073, -471, 0)), False)
sketch10.addGeometry(Part.LineSegment(V(-1073, -471, 0), V(-1054, -471, 0)), False)
sketch10.addGeometry(Part.LineSegment(V(-1054, -471, 0), V(-1054, -490, 0)), False)
sketch10.addGeometry(Part.LineSegment(V(-1054, -490, 0), V(-749, -490, 0)), False)
sketch10.addGeometry(Part.LineSegment(V(-749, -490, 0), V(-749, -452, 0)), False)
sketch10.addConstraint(Sketcher.Constraint("Coincident", 0, 2, 1, 1))
sketch10.addConstraint(Sketcher.Constraint("Coincident", 1, 2, 2, 1))
sketch10.addConstraint(Sketcher.Constraint("Coincident", 2, 2, 3, 1))
sketch10.addConstraint(Sketcher.Constraint("Coincident", 3, 2, 4, 1))
sketch10.addConstraint(Sketcher.Constraint("Coincident", 4, 2, 5, 1))
sketch10.addConstraint(Sketcher.Constraint("Coincident", 5, 2, 6, 1))
sketch10.addConstraint(Sketcher.Constraint("Coincident", 6, 2, 7, 1))
sketch10.addConstraint(Sketcher.Constraint("Coincident", 7, 2, 8, 1))
sketch10.addConstraint(Sketcher.Constraint("Coincident", 8, 2, 9, 1))
sketch10.addConstraint(Sketcher.Constraint("Coincident", 9, 2, 10, 1))
sketch10.addConstraint(Sketcher.Constraint("Coincident", 10, 2, 11, 1))
sketch10.addConstraint(Sketcher.Constraint("Coincident", 11, 2, 0, 1))
sketch10.addConstraint(Sketcher.Constraint("Horizontal", 0))
sketch10.addConstraint(Sketcher.Constraint("Vertical", 1))
sketch10.addConstraint(Sketcher.Constraint("Horizontal", 2))
sketch10.addConstraint(Sketcher.Constraint("Vertical", 3))
sketch10.addConstraint(Sketcher.Constraint("Horizontal", 4))
sketch10.addConstraint(Sketcher.Constraint("Vertical", 5))
sketch10.addConstraint(Sketcher.Constraint("Horizontal", 6))
sketch10.addConstraint(Sketcher.Constraint("Vertical", 7))
sketch10.addConstraint(Sketcher.Constraint("Horizontal", 8))
sketch10.addConstraint(Sketcher.Constraint("Vertical", 9))
sketch10.addConstraint(Sketcher.Constraint("Horizontal", 10))
sketch10.addConstraint(Sketcher.Constraint("Vertical", 11))
sketch10.addConstraint(Sketcher.Constraint("Horizontal", 2, 2, 5, 2))
sketch10.addConstraint(Sketcher.Constraint("Horizontal", 4, 2, 7, 2))
sketch10.addConstraint(Sketcher.Constraint("Horizontal", 6, 2, 9, 2))
sketch10.addConstraint(Sketcher.Constraint("Equal", 4, 8))
sketch10.addConstraint(Sketcher.Constraint("Equal", 2, 10))
sketch10.addConstraint(Sketcher.Constraint("Equal", 8, 3))
sketch10.addConstraint(Sketcher.Constraint("DistanceX", 0, 2, 0, 1, Q("44 in")))
sketch10.addConstraint(Sketcher.Constraint("DistanceX", 2, 1, 2, 2, Q("12 in")))
sketch10.addConstraint(Sketcher.Constraint("DistanceX", 6, 1, 6, 2, Q("18.5 in")))
sketch10.addConstraint(Sketcher.Constraint("DistanceY", 1, 2, 1, 1, Q("1.5 in")))
sketch10.addConstraint(Sketcher.Constraint("DistanceX", 0, 2, -1, 1, Q("1867.089152 mm")))
sketch10.addConstraint(Sketcher.Constraint("DistanceY", 0, 2, -1, 1, Q("452.106331 mm")))
sketch10.setExpression("Constraints[30]", "Params.sketch10_width")
sketch10.setExpression("Constraints[31]", "Params.sketch10_width2")
sketch10.setExpression("Constraints[32]", "Params.sketch10_width3")
sketch10.setExpression("Constraints[33]", "Params.sketch10_height")
pad8 = body8.newObject("PartDesign::Pad", "Pad007")
pad8.Profile = sketch10
pad8.setExpression("Length", "Params.pad8_length")
body9 = doc.addObject("PartDesign::Body", "Body008")

# Sketch on XZ plane
sketch11 = body9.newObject("Sketcher::SketchObject", "Sketch010")
sketch11.AttachmentSupport = (doc.getObject("XZ_Plane008"), [""])
sketch11.MapMode = "FlatFace"
sketch11.addGeometry(Part.LineSegment(V(-562, 212, 0), V(-562, 174, 0)), False)
sketch11.addGeometry(Part.LineSegment(V(-562, 174, 0), V(-155, 174, 0)), False)
sketch11.addGeometry(Part.LineSegment(V(-155, 174, 0), V(-155, 212, 0)), False)
sketch11.addGeometry(Part.LineSegment(V(-155, 212, 0), V(-562, 212, 0)), False)
sketch11.addConstraint(Sketcher.Constraint("Coincident", 0, 2, 1, 1))
sketch11.addConstraint(Sketcher.Constraint("Coincident", 1, 2, 2, 1))
sketch11.addConstraint(Sketcher.Constraint("Coincident", 2, 2, 3, 1))
sketch11.addConstraint(Sketcher.Constraint("Coincident", 3, 2, 0, 1))
sketch11.addConstraint(Sketcher.Constraint("Vertical", 0))
sketch11.addConstraint(Sketcher.Constraint("Horizontal", 1))
sketch11.addConstraint(Sketcher.Constraint("Vertical", 2))
sketch11.addConstraint(Sketcher.Constraint("Horizontal", 3))
sketch11.addConstraint(Sketcher.Constraint("DistanceX", 1, 1, 1, 2, Q("16 in")))
sketch11.addConstraint(Sketcher.Constraint("DistanceY", 0, 2, 0, 1, Q("1.5 in")))
sketch11.addConstraint(Sketcher.Constraint("DistanceX", 0, 2, -1, 1, Q("561.823012 mm")))
sketch11.addConstraint(Sketcher.Constraint("DistanceY", -1, 1, 0, 2, Q("174.154112 mm")))
sketch11.setExpression("Constraints[8]", "Params.sketch11_width")
sketch11.setExpression("Constraints[9]", "Params.sketch11_height")
pad9 = body9.newObject("PartDesign::Pad", "Pad008")
pad9.Profile = sketch11
pad9.setExpression("Length", "Params.pad9_length")
body10 = doc.addObject("PartDesign::Body", "Body009")

# Sketch on XZ plane
sketch12 = body10.newObject("Sketcher::SketchObject", "Sketch011")
sketch12.AttachmentSupport = (doc.getObject("XZ_Plane009"), [""])
sketch12.MapMode = "FlatFace"
sketch12.addGeometry(Part.LineSegment(V(278, -168, 0), V(278, -689, 0)), False)
sketch12.addGeometry(Part.LineSegment(V(278, -689, 0), V(316, -689, 0)), False)
sketch12.addGeometry(Part.LineSegment(V(316, -689, 0), V(316, -168, 0)), False)
sketch12.addGeometry(Part.LineSegment(V(316, -168, 0), V(278, -168, 0)), False)
sketch12.addConstraint(Sketcher.Constraint("Coincident", 0, 2, 1, 1))
sketch12.addConstraint(Sketcher.Constraint("Coincident", 1, 2, 2, 1))
sketch12.addConstraint(Sketcher.Constraint("Coincident", 2, 2, 3, 1))
sketch12.addConstraint(Sketcher.Constraint("Coincident", 3, 2, 0, 1))
sketch12.addConstraint(Sketcher.Constraint("Vertical", 0))
sketch12.addConstraint(Sketcher.Constraint("Horizontal", 1))
sketch12.addConstraint(Sketcher.Constraint("Vertical", 2))
sketch12.addConstraint(Sketcher.Constraint("Horizontal", 3))
sketch12.addConstraint(Sketcher.Constraint("DistanceX", 1, 1, 1, 2, Q("1.5 in")))
sketch12.addConstraint(Sketcher.Constraint("DistanceY", 0, 2, 0, 1, Q("20.5 in")))
sketch12.addConstraint(Sketcher.Constraint("DistanceY", 0, 2, -1, 1, Q("688.657901 mm")))
sketch12.addConstraint(Sketcher.Constraint("DistanceX", -1, 1, 0, 2, Q("277.750062 mm")))
sketch12.setExpression("Constraints[8]", "Params.sketch12_width")
sketch12.setExpression("Constraints[9]", "Params.sketch12_height")
pad10 = body10.newObject("PartDesign::Pad", "Pad009")
pad10.Profile = sketch12
pad10.setExpression("Length", "Params.pad10_length")
doc.recompute()

chamfer = body10.newObject("PartDesign::Chamfer", "Chamfer")
chamfer.Base = (pad10, edges_at(pad10, [(296.8, 0, -688.658)]))
chamfer.setExpression("Size", "Params.chamfer_size")
doc.recompute()

chamfer2 = body10.newObject("PartDesign::Chamfer", "Chamfer001")
chamfer2.Base = (chamfer, edges_at(chamfer, [(315.85, 0, -421.958)]))
chamfer2.setExpression("Size", "Params.chamfer2_size")
body11 = doc.addObject("PartDesign::Body", "Body010")

# Sketch on XZ plane
sketch13 = body11.newObject("Sketcher::SketchObject", "Sketch012")
sketch13.AttachmentSupport = (doc.getObject("XZ_Plane010"), [""])
sketch13.MapMode = "FlatFace"
sketch13.addGeometry(Part.LineSegment(V(-1167, -609, 0), V(-1167, -1067, 0)), False)
sketch13.addGeometry(Part.LineSegment(V(-1167, -1067, 0), V(-596, -1067, 0)), False)
sketch13.addGeometry(Part.LineSegment(V(-596, -1067, 0), V(-596, -609, 0)), False)
sketch13.addGeometry(Part.LineSegment(V(-596, -609, 0), V(-1167, -609, 0)), False)
sketch13.addConstraint(Sketcher.Constraint("Coincident", 0, 2, 1, 1))
sketch13.addConstraint(Sketcher.Constraint("Coincident", 1, 2, 2, 1))
sketch13.addConstraint(Sketcher.Constraint("Coincident", 2, 2, 3, 1))
sketch13.addConstraint(Sketcher.Constraint("Coincident", 3, 2, 0, 1))
sketch13.addConstraint(Sketcher.Constraint("Vertical", 0))
sketch13.addConstraint(Sketcher.Constraint("Horizontal", 1))
sketch13.addConstraint(Sketcher.Constraint("Vertical", 2))
sketch13.addConstraint(Sketcher.Constraint("Horizontal", 3))
sketch13.addConstraint(Sketcher.Constraint("DistanceY", 0, 2, 0, 1, Q("18 in")))
sketch13.addConstraint(Sketcher.Constraint("DistanceX", 1, 1, 1, 2, Q("22.5 in")))
sketch13.addConstraint(Sketcher.Constraint("DistanceX", 0, 2, -1, 1, Q("1167.086419 mm")))
sketch13.addConstraint(Sketcher.Constraint("DistanceY", 0, 2, -1, 1, Q("1066.515634 mm")))
sketch13.setExpression("Constraints[8]", "Params.sketch13_height")
sketch13.setExpression("Constraints[9]", "Params.sketch13_width")
pad11 = body11.newObject("PartDesign::Pad", "Pad010")
pad11.Profile = sketch13
pad11.setExpression("Length", "Params.pad11_length")
body12 = doc.addObject("PartDesign::Body", "Body011")

# Sketch on XZ plane
sketch14 = body12.newObject("Sketcher::SketchObject", "Sketch013")
sketch14.AttachmentSupport = (doc.getObject("XZ_Plane011"), [""])
sketch14.MapMode = "FlatFace"
sketch14.addGeometry(Part.LineSegment(V(573, -691, 0), V(573, -1009, 0)), False)
sketch14.addGeometry(Part.LineSegment(V(573, -1009, 0), V(611, -1009, 0)), False)
sketch14.addGeometry(Part.LineSegment(V(611, -1009, 0), V(611, -691, 0)), False)
sketch14.addGeometry(Part.LineSegment(V(611, -691, 0), V(573, -691, 0)), False)
sketch14.addConstraint(Sketcher.Constraint("Coincident", 0, 2, 1, 1))
sketch14.addConstraint(Sketcher.Constraint("Coincident", 1, 2, 2, 1))
sketch14.addConstraint(Sketcher.Constraint("Coincident", 2, 2, 3, 1))
sketch14.addConstraint(Sketcher.Constraint("Coincident", 3, 2, 0, 1))
sketch14.addConstraint(Sketcher.Constraint("Vertical", 0))
sketch14.addConstraint(Sketcher.Constraint("Horizontal", 1))
sketch14.addConstraint(Sketcher.Constraint("Vertical", 2))
sketch14.addConstraint(Sketcher.Constraint("Horizontal", 3))
sketch14.addConstraint(Sketcher.Constraint("DistanceX", 1, 1, 1, 2, Q("1.5 in")))
sketch14.addConstraint(Sketcher.Constraint("DistanceY", 0, 2, 0, 1, Q("12.5 in")))
sketch14.addConstraint(Sketcher.Constraint("DistanceX", -1, 1, 0, 2, Q("573.367151 mm")))
sketch14.addConstraint(Sketcher.Constraint("DistanceY", 0, 2, -1, 1, Q("1008.844514 mm")))
sketch14.setExpression("Constraints[8]", "Params.sketch14_width")
sketch14.setExpression("Constraints[9]", "Params.sketch14_height")
pad12 = body12.newObject("PartDesign::Pad", "Pad011")
pad12.Profile = sketch14
pad12.setExpression("Length", "Params.pad12_length")

doc.recompute()
